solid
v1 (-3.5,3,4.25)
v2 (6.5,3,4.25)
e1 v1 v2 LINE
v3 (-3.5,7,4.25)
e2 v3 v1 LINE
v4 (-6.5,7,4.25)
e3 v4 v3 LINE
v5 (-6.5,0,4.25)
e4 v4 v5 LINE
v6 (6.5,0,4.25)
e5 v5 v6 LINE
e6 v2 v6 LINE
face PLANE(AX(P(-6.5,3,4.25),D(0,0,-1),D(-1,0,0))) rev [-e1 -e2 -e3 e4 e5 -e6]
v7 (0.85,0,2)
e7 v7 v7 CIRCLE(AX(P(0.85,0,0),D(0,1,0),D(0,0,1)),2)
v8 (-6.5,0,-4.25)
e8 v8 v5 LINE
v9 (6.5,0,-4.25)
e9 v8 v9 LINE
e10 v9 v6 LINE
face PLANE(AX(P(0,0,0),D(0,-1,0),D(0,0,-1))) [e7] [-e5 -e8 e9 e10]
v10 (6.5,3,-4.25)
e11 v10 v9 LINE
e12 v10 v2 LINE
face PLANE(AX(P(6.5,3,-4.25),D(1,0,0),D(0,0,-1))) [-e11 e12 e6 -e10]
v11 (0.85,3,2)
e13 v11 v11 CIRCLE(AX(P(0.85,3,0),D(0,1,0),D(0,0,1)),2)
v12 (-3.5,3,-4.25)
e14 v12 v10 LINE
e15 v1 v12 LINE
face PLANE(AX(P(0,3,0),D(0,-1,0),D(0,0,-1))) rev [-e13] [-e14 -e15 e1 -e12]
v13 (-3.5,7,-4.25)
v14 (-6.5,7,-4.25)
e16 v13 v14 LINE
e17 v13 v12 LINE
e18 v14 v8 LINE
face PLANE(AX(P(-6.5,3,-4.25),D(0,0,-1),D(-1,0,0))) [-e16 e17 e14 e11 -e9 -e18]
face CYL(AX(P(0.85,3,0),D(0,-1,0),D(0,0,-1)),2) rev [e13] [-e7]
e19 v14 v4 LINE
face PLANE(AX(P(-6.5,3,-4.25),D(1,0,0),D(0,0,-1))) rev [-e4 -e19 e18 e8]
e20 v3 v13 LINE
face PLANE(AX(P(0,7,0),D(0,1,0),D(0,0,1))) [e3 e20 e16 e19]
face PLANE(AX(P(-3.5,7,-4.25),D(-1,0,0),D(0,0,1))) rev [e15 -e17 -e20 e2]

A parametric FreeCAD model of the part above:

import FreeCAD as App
import Part
import Sketcher

doc = App.newDocument("Part")
body = doc.addObject("PartDesign::Body", "Body")

# Sketch on XZ plane
sketch1 = body.newObject("Sketcher::SketchObject", "Sketch")
sketch1.AttachmentSupport = (doc.getObject("XZ_Plane"), [""])
sketch1.MapMode = "FlatFace"
sketch1.addGeometry([
    Part.LineSegment(App.Vector(-6, -4, 0), App.Vector(-6, 4, 0)),
    Part.LineSegment(App.Vector(-6, 4, 0), App.Vector(6, 4, 0)),
    Part.LineSegment(App.Vector(6, 4, 0), App.Vector(6, -4, 0)),
    Part.LineSegment(App.Vector(6, -4, 0), App.Vector(-6, -4, 0)),
], False)
sketch1.addConstraint([
    Sketcher.Constraint("Coincident", 0, 2, 1, 1),
    Sketcher.Constraint("Coincident", 1, 2, 2, 1),
    Sketcher.Constraint("Coincident", 2, 2, 3, 1),
    Sketcher.Constraint("Coincident", 3, 2, 0, 1),
    Sketcher.Constraint("Vertical", 0),
    Sketcher.Constraint("Horizontal", 1),
    Sketcher.Constraint("Vertical", 2),
    Sketcher.Constraint("Horizontal", 3),
    Sketcher.Constraint("Symmetric", 0, 2, 2, 2, -1, 1),
    Sketcher.Constraint("DistanceX", 1, 1, 1, 2, 13.0),
    Sketcher.Constraint("DistanceY", 0, 1, 0, 2, 8.5),
])
pad1 = body.newObject("PartDesign::Pad", "Pad")
pad1.Profile = sketch1
pad1.Length = 3
pad1.Reversed = True

# Sketch on XZ plane
sketch2 = body.newObject("Sketcher::SketchObject", "Sketch001")
sketch2.AttachmentSupport = (doc.getObject("XZ_Plane"), [""])
sketch2.MapMode = "FlatFace"
sketch2.addGeometry(Part.Circle(App.Vector(0.8, 0, 0), App.Vector(0, 0, 1), 2), False)
sketch2.addConstraint([
    Sketcher.Constraint("PointOnObject", 0, 3, -1),
    Sketcher.Constraint("Diameter", 0, 4.0),
    Sketcher.Constraint("DistanceX", -1, 1, 0, 3, 0.85),
])
pocket1 = body.newObject("PartDesign::Pocket", "Pocket")
pocket1.Profile = sketch2
pocket1.Type = "ThroughAll"

# Sketch on XZ plane
sketch3 = body.newObject("Sketcher::SketchObject", "Sketch002")
sketch3.AttachmentSupport = (doc.getObject("XZ_Plane"), [""])
sketch3.MapMode = "FlatFace"
sketch3.AttachmentOffset = App.Placement(App.Vector(0, 0, -3), App.Rotation())
sketch3.addGeometry([
    Part.LineSegment(App.Vector(-6.5, -4.2, 0), App.Vector(-6.5, 4.2, 0)),
    Part.LineSegment(App.Vector(-6.5, 4.2, 0), App.Vector(-3.5, 4.2, 0)),
    Part.LineSegment(App.Vector(-3.5, 4.2, 0), App.Vector(-3.5, -4.2, 0)),
    Part.LineSegment(App.Vector(-3.5, -4.2, 0), App.Vector(-6.5, -4.2, 0)),
], False)
sketch3.addConstraint([
    Sketcher.Constraint("Coincident", 0, 2, 1, 1),
    Sketcher.Constraint("Coincident", 1, 2, 2, 1),
    Sketcher.Constraint("Coincident", 2, 2, 3, 1),
    Sketcher.Constraint("Coincident", 3, 2, 0, 1),
    Sketcher.Constraint("Vertical", 0),
    Sketcher.Constraint("Horizontal", 1),
    Sketcher.Constraint("Vertical", 2),
    Sketcher.Constraint("Horizontal", 3),
    Sketcher.Constraint("DistanceX", 1, 1, 1, 2, 3.0),
    Sketcher.Constraint("DistanceY", 0, 1, 0, 2, 8.5),
    Sketcher.Constraint("DistanceX", 0, 2, -1, 1, 6.5),
    Sketcher.Constraint("DistanceY", -1, 1, 0, 2, 4.25),
])
pad2 = body.newObject("PartDesign::Pad", "Pad001")
pad2.Profile = sketch3
pad2.Length = 4
pad2.Reversed = True

doc.recompute()
